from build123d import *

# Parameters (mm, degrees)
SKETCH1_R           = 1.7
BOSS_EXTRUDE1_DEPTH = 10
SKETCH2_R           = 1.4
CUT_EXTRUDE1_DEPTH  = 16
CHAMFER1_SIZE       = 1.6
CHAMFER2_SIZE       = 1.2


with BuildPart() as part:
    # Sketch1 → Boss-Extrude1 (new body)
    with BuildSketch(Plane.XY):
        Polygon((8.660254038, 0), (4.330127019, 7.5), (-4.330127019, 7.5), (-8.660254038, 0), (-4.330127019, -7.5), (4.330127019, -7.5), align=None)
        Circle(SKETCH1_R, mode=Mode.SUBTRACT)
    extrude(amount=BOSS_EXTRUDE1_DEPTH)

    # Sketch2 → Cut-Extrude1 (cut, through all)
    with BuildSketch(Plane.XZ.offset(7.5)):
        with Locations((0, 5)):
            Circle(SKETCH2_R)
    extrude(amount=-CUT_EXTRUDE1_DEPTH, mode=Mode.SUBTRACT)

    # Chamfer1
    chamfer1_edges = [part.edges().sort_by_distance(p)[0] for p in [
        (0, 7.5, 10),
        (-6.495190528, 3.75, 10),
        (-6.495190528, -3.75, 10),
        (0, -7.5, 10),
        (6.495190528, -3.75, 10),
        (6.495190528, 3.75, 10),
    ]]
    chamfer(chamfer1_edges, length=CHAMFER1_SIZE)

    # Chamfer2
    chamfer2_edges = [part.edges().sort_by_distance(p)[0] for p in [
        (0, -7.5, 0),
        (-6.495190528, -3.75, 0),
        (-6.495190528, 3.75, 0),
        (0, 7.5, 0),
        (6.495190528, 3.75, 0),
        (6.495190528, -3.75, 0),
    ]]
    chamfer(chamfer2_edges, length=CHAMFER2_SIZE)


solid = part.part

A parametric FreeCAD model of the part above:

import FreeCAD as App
import Part
import Sketcher
Q = App.Units.Quantity


def edges_at(feature, points):
    """Names of the edges that pass closest to the given points."""
    edges = feature.Shape.Edges
    near = lambda p: min(range(len(edges)), key=lambda i: edges[i].distToShape(Part.Vertex(*p))[0])
    return sorted({f"Edge{near(p) + 1}" for p in points})

doc = App.newDocument("Part")
body = doc.addObject("PartDesign::Body", "Body")

# Sketch on XY plane
sketch1 = body.newObject("Sketcher::SketchObject", "Sketch")
sketch1.AttachmentSupport = (doc.getObject("XY_Plane"), [""])
sketch1.MapMode = "FlatFace"
sketch1.addGeometry(Part.LineSegment(App.Vector(8.7, 0, 0), App.Vector(4.3, 7.5, 0)), False)
sketch1.addGeometry(Part.LineSegment(App.Vector(4.3, 7.5, 0), App.Vector(-4.3, 7.5, 0)), False)
sketch1.addGeometry(Part.LineSegment(App.Vector(-4.3, 7.5, 0), App.Vector(-8.7, 0, 0)), False)
sketch1.addGeometry(Part.LineSegment(App.Vector(-8.7, 0, 0), App.Vector(-4.3, -7.5, 0)), False)
sketch1.addGeometry(Part.LineSegment(App.Vector(-4.3, -7.5, 0), App.Vector(4.3, -7.5, 0)), False)
sketch1.addGeometry(Part.LineSegment(App.Vector(4.3, -7.5, 0), App.Vector(8.7, 0, 0)), False)
sketch1.addGeometry(Part.Circle(App.Vector(0, 0, 0), App.Vector(0, 0, 1), 1.7), False)
sketch1.addConstraint(Sketcher.Constraint("Coincident", 0, 2, 1, 1))
sketch1.addConstraint(Sketcher.Constraint("Coincident", 1, 2, 2, 1))
sketch1.addConstraint(Sketcher.Constraint("Coincident", 2, 2, 3, 1))
sketch1.addConstraint(Sketcher.Constraint("Coincident", 3, 2, 4, 1))
sketch1.addConstraint(Sketcher.Constraint("Coincident", 4, 2, 5, 1))
sketch1.addConstraint(Sketcher.Constraint("Coincident", 5, 2, 0, 1))
sketch1.addConstraint(Sketcher.Constraint("Horizontal", 1))
sketch1.addConstraint(Sketcher.Constraint("Horizontal", 4))
sketch1.addConstraint(Sketcher.Constraint("Coincident", 6, 3, -1, 1))
sketch1.addConstraint(Sketcher.Constraint("Symmetric", 0, 2, 3, 2, -1, 1))
sketch1.addConstraint(Sketcher.Constraint("Symmetric", 2, 2, 5, 2, -1, 1))
sketch1.addConstraint(Sketcher.Constraint("PointOnObject", 2, 2, -1))
sketch1.addConstraint(Sketcher.Constraint("Parallel", 2, 5))
sketch1.addConstraint(Sketcher.Constraint("Vertical", 1, 2, 3, 2))
sketch1.addConstraint(Sketcher.Constraint("Diameter", 6, 3.4))
sketch1.addConstraint(Sketcher.Constraint("Angle", 0, Q("120 deg")))
sketch1.addConstraint(Sketcher.Constraint("DistanceY", 3, 2, 1, 2, 15.0))
sketch1.addConstraint(Sketcher.Constraint("DistanceX", 1, 2, 1, 1, 8.660254))
pad1 = body.newObject("PartDesign::Pad", "Pad")
pad1.Profile = sketch1
pad1.Length = 10

# Sketch on XZ plane
sketch2 = body.newObject("Sketcher::SketchObject", "Sketch001")
sketch2.AttachmentSupport = (doc.getObject("XZ_Plane"), [""])
sketch2.MapMode = "FlatFace"
sketch2.AttachmentOffset = App.Placement(App.Vector(0, 0, 7.5), App.Rotation())
sketch2.addGeometry(Part.Circle(App.Vector(0, 5, 0), App.Vector(0, 0, 1), 1.4), False)
sketch2.addConstraint(Sketcher.Constraint("PointOnObject", 0, 3, -2))
sketch2.addConstraint(Sketcher.Constraint("Diameter", 0, 2.8))
sketch2.addConstraint(Sketcher.Constraint("DistanceY", -1, 1, 0, 3, 5.0))
pocket1 = body.newObject("PartDesign::Pocket", "Pocket")
pocket1.Profile = sketch2
pocket1.Type = "ThroughAll"
doc.recompute()

chamfer = body.newObject("PartDesign::Chamfer", "Chamfer")
chamfer.Base = (pocket1, edges_at(pocket1, [
    (0, 7.5, 10),
    (-6.495, 3.75, 10),
    (-6.495, -3.75, 10),
    (0, -7.5, 10),
    (6.495, -3.75, 10),
    (6.495, 3.75, 10),
]))
chamfer.Size = 1.6
doc.recompute()

chamfer2 = body.newObject("PartDesign::Chamfer", "Chamfer001")
chamfer2.Base = (chamfer, edges_at(chamfer, [
    (0, -7.5, 0),
    (-6.495, -3.75, 0),
    (-6.495, 3.75, 0),
    (0, 7.5, 0),
    (6.495, 3.75, 0),
    (6.495, -3.75, 0),
]))
chamfer2.Size = 1.2

doc.recompute()
